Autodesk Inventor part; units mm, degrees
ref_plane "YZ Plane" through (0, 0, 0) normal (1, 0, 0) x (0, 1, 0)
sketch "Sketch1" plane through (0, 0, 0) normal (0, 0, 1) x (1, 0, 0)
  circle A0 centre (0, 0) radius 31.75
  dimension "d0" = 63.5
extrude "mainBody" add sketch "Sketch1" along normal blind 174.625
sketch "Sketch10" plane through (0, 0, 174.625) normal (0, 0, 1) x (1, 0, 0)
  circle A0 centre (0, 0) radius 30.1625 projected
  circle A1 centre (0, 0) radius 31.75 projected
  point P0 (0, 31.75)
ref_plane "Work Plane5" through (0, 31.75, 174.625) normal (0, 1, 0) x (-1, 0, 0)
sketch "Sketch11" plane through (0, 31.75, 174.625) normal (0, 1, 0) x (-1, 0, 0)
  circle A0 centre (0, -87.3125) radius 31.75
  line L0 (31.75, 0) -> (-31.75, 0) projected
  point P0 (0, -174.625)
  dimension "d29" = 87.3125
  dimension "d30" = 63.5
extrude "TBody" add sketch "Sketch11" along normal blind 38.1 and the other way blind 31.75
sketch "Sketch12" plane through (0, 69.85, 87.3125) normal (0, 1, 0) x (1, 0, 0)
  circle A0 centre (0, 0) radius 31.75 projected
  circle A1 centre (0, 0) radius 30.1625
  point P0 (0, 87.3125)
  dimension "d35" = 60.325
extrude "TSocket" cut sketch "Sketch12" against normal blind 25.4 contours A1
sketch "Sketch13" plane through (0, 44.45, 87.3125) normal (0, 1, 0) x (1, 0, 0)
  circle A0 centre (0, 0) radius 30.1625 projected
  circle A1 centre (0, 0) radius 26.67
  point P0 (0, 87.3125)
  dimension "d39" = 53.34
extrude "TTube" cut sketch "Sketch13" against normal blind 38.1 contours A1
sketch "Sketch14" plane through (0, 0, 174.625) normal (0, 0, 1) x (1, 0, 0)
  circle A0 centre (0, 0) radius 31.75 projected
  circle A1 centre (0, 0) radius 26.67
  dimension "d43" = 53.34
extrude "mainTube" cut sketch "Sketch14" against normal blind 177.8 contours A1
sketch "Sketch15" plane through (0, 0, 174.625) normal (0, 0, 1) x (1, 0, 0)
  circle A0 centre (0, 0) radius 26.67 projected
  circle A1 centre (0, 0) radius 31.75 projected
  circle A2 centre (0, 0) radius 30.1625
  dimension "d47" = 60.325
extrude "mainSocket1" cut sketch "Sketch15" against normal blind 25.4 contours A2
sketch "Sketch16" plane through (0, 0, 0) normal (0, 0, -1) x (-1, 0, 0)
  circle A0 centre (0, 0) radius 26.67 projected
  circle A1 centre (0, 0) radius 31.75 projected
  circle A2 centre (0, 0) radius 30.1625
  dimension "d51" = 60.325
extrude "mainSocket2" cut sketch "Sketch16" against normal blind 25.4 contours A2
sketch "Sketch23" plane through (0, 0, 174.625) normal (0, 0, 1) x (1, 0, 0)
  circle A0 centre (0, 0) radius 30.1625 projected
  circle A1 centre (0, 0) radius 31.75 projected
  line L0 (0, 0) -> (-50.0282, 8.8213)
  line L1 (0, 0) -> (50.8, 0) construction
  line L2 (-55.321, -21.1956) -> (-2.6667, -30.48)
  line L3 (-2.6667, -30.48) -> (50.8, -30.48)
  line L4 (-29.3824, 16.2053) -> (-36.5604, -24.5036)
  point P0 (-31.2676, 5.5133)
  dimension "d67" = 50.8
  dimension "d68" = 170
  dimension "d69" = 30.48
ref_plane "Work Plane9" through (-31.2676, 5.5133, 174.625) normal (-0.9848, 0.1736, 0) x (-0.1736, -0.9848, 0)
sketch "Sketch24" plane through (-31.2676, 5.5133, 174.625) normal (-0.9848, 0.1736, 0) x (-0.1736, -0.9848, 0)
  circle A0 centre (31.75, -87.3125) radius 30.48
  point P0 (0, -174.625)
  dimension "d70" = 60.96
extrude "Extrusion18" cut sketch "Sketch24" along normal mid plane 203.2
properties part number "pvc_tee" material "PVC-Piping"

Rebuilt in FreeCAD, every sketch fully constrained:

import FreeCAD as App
import Part
import Sketcher

V = App.Vector
Q = App.Units.Quantity

doc = App.newDocument("Part")
body = doc.addObject("PartDesign::Body", "Body")

# Sketch on XY plane
sketch1 = doc.addObject("Sketcher::SketchObject", "Sketch")
body.addObject(sketch1)
sketch1.AttachmentSupport = (doc.XY_Plane, [""])
sketch1.MapMode = "FlatFace"
sketch1.addGeometry(Part.Circle(V(0, 0, 0), V(0, 0, 1), 31.75), False)
sketch1.addConstraint(Sketcher.Constraint("Coincident", 0, 3, -1, 1))
sketch1.addConstraint(Sketcher.Constraint("Diameter", 0, Q("2.5 in")))
pad1 = doc.addObject("PartDesign::Pad", "Pad")
body.addObject(pad1)
pad1.Profile = sketch1
pad1.Length = Q("6.875 in")

# Sketch on XZ plane
sketch2 = doc.addObject("Sketcher::SketchObject", "Sketch001")
body.addObject(sketch2)
sketch2.AttachmentSupport = (doc.XZ_Plane, [""])
sketch2.MapMode = "FlatFace"
sketch2.AttachmentOffset = App.Placement(V(0, 0, -1.25 * 25.4), App.Rotation())
sketch2.addGeometry(Part.Circle(V(0, 87.3125, 0), V(0, 0, 1), 31.75), False)
sketch2.addConstraint(Sketcher.Constraint("PointOnObject", 0, 3, -2))
sketch2.addConstraint(Sketcher.Constraint("Diameter", 0, Q("2.5 in")))
sketch2.addConstraint(Sketcher.Constraint("DistanceY", -1, 1, 0, 3, Q("3.4375 in")))
pad2 = doc.addObject("PartDesign::Pad", "Pad001")
body.addObject(pad2)
pad2.Profile = sketch2
pad2.Type = "TwoLengths"
pad2.Length = Q("1.5 in")
pad2.Length2 = Q("1.25 in")
pad2.Reversed = True

# Sketch on XZ plane
sketch3 = doc.addObject("Sketcher::SketchObject", "Sketch002")
body.addObject(sketch3)
sketch3.AttachmentSupport = (doc.XZ_Plane, [""])
sketch3.MapMode = "FlatFace"
sketch3.AttachmentOffset = App.Placement(V(0, 0, -2.75 * 25.4), App.Rotation())
sketch3.addGeometry(Part.Circle(V(0, 87.3125, 0), V(0, 0, 1), 30.1625), False)
sketch3.addConstraint(Sketcher.Constraint("PointOnObject", 0, 3, -2))
sketch3.addConstraint(Sketcher.Constraint("Diameter", 0, Q("2.375 in")))
sketch3.addConstraint(Sketcher.Constraint("DistanceY", -1, 1, 0, 3, Q("3.4375 in")))
pocket1 = doc.addObject("PartDesign::Pocket", "Pocket")
body.addObject(pocket1)
pocket1.Profile = sketch3
pocket1.Length = Q("1 in")
pocket1.Reversed = True

# Sketch on XZ plane
sketch4 = doc.addObject("Sketcher::SketchObject", "Sketch003")
body.addObject(sketch4)
sketch4.AttachmentSupport = (doc.XZ_Plane, [""])
sketch4.MapMode = "FlatFace"
sketch4.AttachmentOffset = App.Placement(V(0, 0, -1.75 * 25.4), App.Rotation())
sketch4.addGeometry(Part.Circle(V(0, 87.3125, 0), V(0, 0, 1), 26.67), False)
sketch4.addConstraint(Sketcher.Constraint("PointOnObject", 0, 3, -2))
sketch4.addConstraint(Sketcher.Constraint("Diameter", 0, Q("2.1 in")))
sketch4.addConstraint(Sketcher.Constraint("DistanceY", -1, 1, 0, 3, Q("3.4375 in")))
pocket2 = doc.addObject("PartDesign::Pocket", "Pocket001")
body.addObject(pocket2)
pocket2.Profile = sketch4
pocket2.Length = Q("1.5 in")
pocket2.Reversed = True

# Sketch on XY plane
sketch5 = doc.addObject("Sketcher::SketchObject", "Sketch004")
body.addObject(sketch5)
sketch5.AttachmentSupport = (doc.XY_Plane, [""])
sketch5.MapMode = "FlatFace"
sketch5.AttachmentOffset = App.Placement(V(0, 0, 6.875 * 25.4), App.Rotation())
sketch5.addGeometry(Part.Circle(V(0, 0, 0), V(0, 0, 1), 26.67), False)
sketch5.addConstraint(Sketcher.Constraint("Coincident", 0, 3, -1, 1))
sketch5.addConstraint(Sketcher.Constraint("Diameter", 0, Q("2.1 in")))
pocket3 = doc.addObject("PartDesign::Pocket", "Pocket002")
body.addObject(pocket3)
pocket3.Profile = sketch5
pocket3.Length = Q("7 in")

# Sketch on XY plane
sketch6 = doc.addObject("Sketcher::SketchObject", "Sketch005")
body.addObject(sketch6)
sketch6.AttachmentSupport = (doc.XY_Plane, [""])
sketch6.MapMode = "FlatFace"
sketch6.AttachmentOffset = App.Placement(V(0, 0, 6.875 * 25.4), App.Rotation())
sketch6.addGeometry(Part.Circle(V(0, 0, 0), V(0, 0, 1), 30.1625), False)
sketch6.addGeometry(Part.Circle(V(0, 0, 0), V(0, 0, 1), 26.67), False)
sketch6.addConstraint(Sketcher.Constraint("Coincident", 0, 3, -1, 1))
sketch6.addConstraint(Sketcher.Constraint("Coincident", 1, 3, -1, 1))
sketch6.addConstraint(Sketcher.Constraint("Diameter", 0, Q("2.375 in")))
sketch6.addConstraint(Sketcher.Constraint("Diameter", 1, Q("2.1 in")))
pocket4 = doc.addObject("PartDesign::Pocket", "Pocket003")
body.addObject(pocket4)
pocket4.Profile = sketch6
pocket4.Length = Q("1 in")

# Sketch on XY plane
sketch7 = doc.addObject("Sketcher::SketchObject", "Sketch006")
body.addObject(sketch7)
sketch7.AttachmentSupport = (doc.XY_Plane, [""])
sketch7.MapMode = "FlatFace"
sketch7.addGeometry(Part.Circle(V(0, 0, 0), V(0, 0, 1), 30.1625), False)
sketch7.addGeometry(Part.Circle(V(0, 0, 0), V(0, 0, 1), 26.67), False)
sketch7.addConstraint(Sketcher.Constraint("Coincident", 0, 3, -1, 1))
sketch7.addConstraint(Sketcher.Constraint("Coincident", 1, 3, -1, 1))
sketch7.addConstraint(Sketcher.Constraint("Diameter", 0, Q("2.375 in")))
sketch7.addConstraint(Sketcher.Constraint("Diameter", 1, Q("2.1 in")))
pocket5 = doc.addObject("PartDesign::Pocket", "Pocket004")
body.addObject(pocket5)
pocket5.Profile = sketch7
pocket5.Length = Q("1 in")
pocket5.Reversed = True

# Sketch on an angled plane
sketch8 = doc.addObject("Sketcher::SketchObject", "Sketch007")
body.addObject(sketch8)
sketch8.Placement = App.Placement(V(-31.2676, 5.5133, 174.625), App.Rotation(V(-0.173648178, -0.984807753, 0), V(0, 0, 1), V(-0.984807753, 0.173648178, 0), "ZXY"))
sketch8.addGeometry(Part.Circle(V(31.75, -87.3125, 0), V(0, 0, 1), 30.48), False)
sketch8.addConstraint(Sketcher.Constraint("Diameter", 0, Q("2.4 in")))
sketch8.addConstraint(Sketcher.Constraint("DistanceX", -1, 1, 0, 3, Q("1.25 in")))
sketch8.addConstraint(Sketcher.Constraint("DistanceY", 0, 3, -1, 1, Q("3.4375 in")))
pocket6 = doc.addObject("PartDesign::Pocket", "Pocket005")
body.addObject(pocket6)
pocket6.Profile = sketch8
pocket6.Length = Q("8 in")
pocket6.Midplane = True

doc.recompute()
